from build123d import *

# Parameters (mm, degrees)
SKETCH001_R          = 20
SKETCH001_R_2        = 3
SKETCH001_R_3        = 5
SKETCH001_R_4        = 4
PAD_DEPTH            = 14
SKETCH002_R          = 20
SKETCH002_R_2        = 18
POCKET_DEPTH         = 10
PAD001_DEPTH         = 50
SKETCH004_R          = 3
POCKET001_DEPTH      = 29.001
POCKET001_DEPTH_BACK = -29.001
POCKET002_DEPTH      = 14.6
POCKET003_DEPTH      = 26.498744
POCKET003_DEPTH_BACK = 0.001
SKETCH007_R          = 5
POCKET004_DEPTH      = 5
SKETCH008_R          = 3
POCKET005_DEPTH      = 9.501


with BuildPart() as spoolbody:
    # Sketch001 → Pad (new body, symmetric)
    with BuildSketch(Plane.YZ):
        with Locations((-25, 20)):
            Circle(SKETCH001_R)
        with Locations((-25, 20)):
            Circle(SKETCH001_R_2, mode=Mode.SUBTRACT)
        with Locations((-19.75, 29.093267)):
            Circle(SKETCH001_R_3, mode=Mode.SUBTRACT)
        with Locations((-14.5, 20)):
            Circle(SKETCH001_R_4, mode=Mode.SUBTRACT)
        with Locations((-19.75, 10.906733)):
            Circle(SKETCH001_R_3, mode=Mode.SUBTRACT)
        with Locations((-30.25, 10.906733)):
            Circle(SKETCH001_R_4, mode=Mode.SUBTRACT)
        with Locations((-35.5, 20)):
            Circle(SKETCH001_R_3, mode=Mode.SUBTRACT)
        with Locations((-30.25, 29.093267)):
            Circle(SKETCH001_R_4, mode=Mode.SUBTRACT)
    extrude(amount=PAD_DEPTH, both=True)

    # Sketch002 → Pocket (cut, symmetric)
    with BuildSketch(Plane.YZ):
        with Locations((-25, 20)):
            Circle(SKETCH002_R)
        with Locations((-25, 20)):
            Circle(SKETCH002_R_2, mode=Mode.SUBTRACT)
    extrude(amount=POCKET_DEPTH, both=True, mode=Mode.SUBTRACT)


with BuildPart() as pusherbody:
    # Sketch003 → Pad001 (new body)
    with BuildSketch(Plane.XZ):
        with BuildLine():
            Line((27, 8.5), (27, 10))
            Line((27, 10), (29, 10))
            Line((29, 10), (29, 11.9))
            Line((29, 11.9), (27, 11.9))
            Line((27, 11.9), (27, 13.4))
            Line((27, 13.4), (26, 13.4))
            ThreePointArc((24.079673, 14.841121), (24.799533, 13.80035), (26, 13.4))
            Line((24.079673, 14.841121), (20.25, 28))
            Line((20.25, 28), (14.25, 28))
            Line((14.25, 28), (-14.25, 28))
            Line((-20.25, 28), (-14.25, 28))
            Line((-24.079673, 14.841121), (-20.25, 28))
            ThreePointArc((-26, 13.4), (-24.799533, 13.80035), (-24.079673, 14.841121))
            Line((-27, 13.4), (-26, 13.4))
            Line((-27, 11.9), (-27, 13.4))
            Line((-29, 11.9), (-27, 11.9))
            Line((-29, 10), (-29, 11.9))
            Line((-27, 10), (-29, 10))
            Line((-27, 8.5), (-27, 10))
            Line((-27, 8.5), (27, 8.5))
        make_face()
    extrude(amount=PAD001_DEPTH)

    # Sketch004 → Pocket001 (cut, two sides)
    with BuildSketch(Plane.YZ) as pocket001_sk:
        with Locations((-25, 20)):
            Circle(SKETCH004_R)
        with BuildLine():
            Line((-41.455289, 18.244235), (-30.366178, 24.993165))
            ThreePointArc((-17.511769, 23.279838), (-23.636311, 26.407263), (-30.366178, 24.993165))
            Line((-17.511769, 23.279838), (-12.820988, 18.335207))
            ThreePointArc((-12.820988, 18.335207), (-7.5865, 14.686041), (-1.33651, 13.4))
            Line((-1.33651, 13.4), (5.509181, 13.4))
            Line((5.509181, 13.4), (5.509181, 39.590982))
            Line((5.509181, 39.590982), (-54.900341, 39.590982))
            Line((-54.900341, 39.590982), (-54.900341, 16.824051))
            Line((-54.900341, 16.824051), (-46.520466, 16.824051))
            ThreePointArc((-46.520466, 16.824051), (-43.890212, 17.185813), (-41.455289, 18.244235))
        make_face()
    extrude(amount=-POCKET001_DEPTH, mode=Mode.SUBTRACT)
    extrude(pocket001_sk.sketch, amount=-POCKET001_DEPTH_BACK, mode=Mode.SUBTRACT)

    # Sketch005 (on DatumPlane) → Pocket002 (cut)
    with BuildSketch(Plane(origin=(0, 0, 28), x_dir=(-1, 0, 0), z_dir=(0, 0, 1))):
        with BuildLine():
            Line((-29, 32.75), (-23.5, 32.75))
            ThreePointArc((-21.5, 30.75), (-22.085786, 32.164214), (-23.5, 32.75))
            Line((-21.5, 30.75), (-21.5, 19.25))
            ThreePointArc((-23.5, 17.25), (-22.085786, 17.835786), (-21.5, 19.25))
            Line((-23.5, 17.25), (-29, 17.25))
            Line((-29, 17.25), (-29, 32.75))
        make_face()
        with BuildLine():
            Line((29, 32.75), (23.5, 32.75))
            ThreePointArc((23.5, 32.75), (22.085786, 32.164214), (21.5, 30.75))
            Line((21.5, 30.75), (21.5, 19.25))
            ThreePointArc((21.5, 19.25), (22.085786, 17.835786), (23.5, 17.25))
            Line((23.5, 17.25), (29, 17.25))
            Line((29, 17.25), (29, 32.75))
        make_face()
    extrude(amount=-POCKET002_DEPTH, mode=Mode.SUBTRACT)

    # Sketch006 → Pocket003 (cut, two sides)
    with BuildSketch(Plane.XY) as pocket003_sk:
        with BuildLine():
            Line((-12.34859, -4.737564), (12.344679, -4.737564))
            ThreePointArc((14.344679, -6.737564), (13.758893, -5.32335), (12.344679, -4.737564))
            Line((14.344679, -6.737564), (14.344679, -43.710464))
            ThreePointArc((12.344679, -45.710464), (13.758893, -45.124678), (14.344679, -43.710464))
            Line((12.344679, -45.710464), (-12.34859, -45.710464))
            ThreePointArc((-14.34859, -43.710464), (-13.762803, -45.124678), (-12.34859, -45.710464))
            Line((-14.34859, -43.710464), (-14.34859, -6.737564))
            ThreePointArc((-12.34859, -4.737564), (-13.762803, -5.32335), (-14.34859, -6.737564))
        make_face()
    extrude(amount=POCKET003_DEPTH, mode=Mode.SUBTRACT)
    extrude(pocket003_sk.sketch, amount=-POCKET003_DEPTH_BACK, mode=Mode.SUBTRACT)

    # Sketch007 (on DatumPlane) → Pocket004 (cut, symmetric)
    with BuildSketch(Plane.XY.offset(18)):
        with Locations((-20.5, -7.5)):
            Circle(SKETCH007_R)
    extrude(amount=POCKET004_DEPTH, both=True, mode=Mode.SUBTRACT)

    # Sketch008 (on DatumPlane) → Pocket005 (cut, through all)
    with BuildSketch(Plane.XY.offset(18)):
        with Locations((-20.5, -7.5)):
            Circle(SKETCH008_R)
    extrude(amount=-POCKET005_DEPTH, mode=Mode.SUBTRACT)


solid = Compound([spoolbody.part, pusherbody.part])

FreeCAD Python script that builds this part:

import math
import FreeCAD as App
import Part
import Sketcher

doc = App.newDocument("Part")
body = doc.addObject("PartDesign::Body", "Body")

# Sketch on YZ plane
sketch1 = body.newObject("Sketcher::SketchObject", "Sketch")
sketch1.AttachmentSupport = (doc.getObject("YZ_Plane"), [""])
sketch1.MapMode = "FlatFace"
sketch1.addGeometry([
    Part.Circle(App.Vector(-25, 20, 0), App.Vector(0, 0, 1), 20),  # 0
    Part.Circle(App.Vector(-30.2, 10.9, 0), App.Vector(0, 0, 1), 4),  # 1
    Part.Circle(App.Vector(-19.8, 10.9, 0), App.Vector(0, 0, 1), 5),  # 2
    Part.Circle(App.Vector(-35.5, 20, 0), App.Vector(0, 0, 1), 5),  # 3
    Part.Circle(App.Vector(-30.2, 29.1, 0), App.Vector(0, 0, 1), 4),  # 4
    Part.Circle(App.Vector(-25, 20, 0), App.Vector(0, 0, 1), 3),  # 5
    Part.Circle(App.Vector(-14.5, 20, 0), App.Vector(0, 0, 1), 4),  # 6
    Part.Circle(App.Vector(-19.8, 29.1, 0), App.Vector(0, 0, 1), 5),  # 7
], False)
sketch1.addConstraint([
    Sketcher.Constraint("Coincident", 5, 3, 0, 3),
    Sketcher.Constraint("Equal", 2, 3),
    Sketcher.Constraint("Equal", 1, 4),
    Sketcher.Constraint("Equal", 4, 6),
    Sketcher.Constraint("Equal", 3, 7),
    Sketcher.Constraint("Horizontal", 1, 3, 2, 3),
    Sketcher.Constraint("Horizontal", 0, 3, 3, 3),
    Sketcher.Constraint("Horizontal", 5, 3, 6, 3),
    Sketcher.Constraint("Horizontal", 4, 3, 7, 3),
    Sketcher.Constraint("Vertical", 1, 3, 4, 3),
    Sketcher.Constraint("Vertical", 2, 3, 7, 3),
    Sketcher.Constraint("Diameter", 0, 40.0),
    Sketcher.Constraint("Diameter", 1, 8.0),
    Sketcher.Constraint("Diameter", 2, 10.0),
    Sketcher.Constraint("Diameter", 5, 6.0),
    Sketcher.Constraint("DistanceX", 0, 3, -1, 1, 25.0),
    Sketcher.Constraint("DistanceY", -1, 1, 0, 3, 20.0),
    Sketcher.Constraint("DistanceX", 3, 3, -1, 1, 35.5),
    Sketcher.Constraint("DistanceX", 6, 3, -1, 1, 14.5),
    Sketcher.Constraint("DistanceX", 1, 3, 2, 3, 10.5),
    Sketcher.Constraint("DistanceX", 1, 3, -1, 1, 30.25),
    Sketcher.Constraint("DistanceY", -1, 1, 1, 3, 10.906733),
    Sketcher.Constraint("DistanceY", -1, 1, 4, 3, 29.093267),
])
pad1 = body.newObject("PartDesign::Pad", "Pad")
pad1.Profile = sketch1
pad1.Length = 28
pad1.Midplane = True

# Sketch on YZ plane
sketch2 = body.newObject("Sketcher::SketchObject", "Sketch001")
sketch2.AttachmentSupport = (doc.getObject("YZ_Plane"), [""])
sketch2.MapMode = "FlatFace"
sketch2.addGeometry([
    Part.Circle(App.Vector(-25, 20, 0), App.Vector(0, 0, 1), 20),
    Part.Circle(App.Vector(-25, 20, 0), App.Vector(0, 0, 1), 18),
], False)
sketch2.addConstraint([
    Sketcher.Constraint("Coincident", 1, 3, 0, 3),
    Sketcher.Constraint("Diameter", 0, 40.0),
    Sketcher.Constraint("Diameter", 1, 36.0),
    Sketcher.Constraint("DistanceX", 0, 3, -1, 1, 25.0),
    Sketcher.Constraint("DistanceY", -1, 1, 0, 3, 20.0),
])
pocket1 = body.newObject("PartDesign::Pocket", "Pocket")
pocket1.Profile = sketch2
pocket1.Length = 20
pocket1.Midplane = True
body2 = doc.addObject("PartDesign::Body", "Body001")

# Sketch on XZ plane
sketch3 = body2.newObject("Sketcher::SketchObject", "Sketch002")
sketch3.AttachmentSupport = (doc.getObject("XZ_Plane001"), [""])
sketch3.MapMode = "FlatFace"
sketch3.addGeometry([
    Part.LineSegment(App.Vector(27, 8.5, 0), App.Vector(27, 10, 0)),  # 0
    Part.LineSegment(App.Vector(27, 10, 0), App.Vector(29, 10, 0)),  # 1
    Part.LineSegment(App.Vector(29, 10, 0), App.Vector(29, 11.9, 0)),  # 2
    Part.LineSegment(App.Vector(29, 11.9, 0), App.Vector(27, 11.9, 0)),  # 3
    Part.LineSegment(App.Vector(27, 11.9, 0), App.Vector(27, 13.4, 0)),  # 4
    Part.LineSegment(App.Vector(27, 13.4, 0), App.Vector(26, 13.4, 0)),  # 5
    Part.ArcOfCircle(Part.Circle(App.Vector(26, 15.4, 0), App.Vector(0, 0, 1), 2), math.radians(-164), math.radians(-90)),  # 6
    Part.LineSegment(App.Vector(24.1, 14.8, 0), App.Vector(20.2, 28, 0)),  # 7
    Part.LineSegment(App.Vector(20.2, 28, 0), App.Vector(-20.2, 28, 0)),  # 8
    Part.LineSegment(App.Vector(-20.2, 28, 0), App.Vector(-24.1, 14.8, 0)),  # 9
    Part.ArcOfCircle(Part.Circle(App.Vector(-26, 15.4, 0), App.Vector(0, 0, 1), 2), math.radians(-90), math.radians(-16)),  # 10
    Part.LineSegment(App.Vector(-26, 13.4, 0), App.Vector(-27, 13.4, 0)),  # 11
    Part.LineSegment(App.Vector(-27, 13.4, 0), App.Vector(-27, 11.9, 0)),  # 12
    Part.LineSegment(App.Vector(-27, 11.9, 0), App.Vector(-29, 11.9, 0)),  # 13
    Part.LineSegment(App.Vector(-29, 11.9, 0), App.Vector(-29, 10, 0)),  # 14
    Part.LineSegment(App.Vector(-29, 10, 0), App.Vector(-27, 10, 0)),  # 15
    Part.LineSegment(App.Vector(-27, 10, 0), App.Vector(-27, 8.5, 0)),  # 16
    Part.LineSegment(App.Vector(-27, 8.5, 0), App.Vector(27, 8.5, 0)),  # 17
], False)
sketch3.addConstraint([
    Sketcher.Constraint("Coincident", 0, 2, 1, 1),
    Sketcher.Constraint("Coincident", 1, 2, 2, 1),
    Sketcher.Constraint("Coincident", 2, 2, 3, 1),
    Sketcher.Constraint("Coincident", 3, 2, 4, 1),
    Sketcher.Constraint("Coincident", 4, 2, 5, 1),
    Sketcher.Constraint("Tangent", 5, 2, 6, 2),
    Sketcher.Constraint("Tangent", 6, 1, 7, 1),
    Sketcher.Constraint("Coincident", 7, 2, 8, 1),
    Sketcher.Constraint("Coincident", 8, 2, 9, 1),
    Sketcher.Constraint("Tangent", 9, 2, 10, 2),
    Sketcher.Constraint("Tangent", 10, 1, 11, 1),
    Sketcher.Constraint("Coincident", 11, 2, 12, 1),
    Sketcher.Constraint("Coincident", 12, 2, 13, 1),
    Sketcher.Constraint("Coincident", 13, 2, 14, 1),
    Sketcher.Constraint("Coincident", 14, 2, 15, 1),
    Sketcher.Constraint("Coincident", 15, 2, 16, 1),
    Sketcher.Constraint("Coincident", 16, 2, 17, 1),
    Sketcher.Constraint("Coincident", 17, 2, 0, 1),
    Sketcher.Constraint("Vertical", 0),
    Sketcher.Constraint("Horizontal", 1),
    Sketcher.Constraint("Vertical", 2),
    Sketcher.Constraint("Horizontal", 3),
    Sketcher.Constraint("Vertical", 4),
    Sketcher.Constraint("Horizontal", 5),
    Sketcher.Constraint("Horizontal", 8),
    Sketcher.Constraint("Horizontal", 11),
    Sketcher.Constraint("Vertical", 12),
    Sketcher.Constraint("Horizontal", 13),
    Sketcher.Constraint("Vertical", 14),
    Sketcher.Constraint("Horizontal", 15),
    Sketcher.Constraint("Vertical", 16),
    Sketcher.Constraint("Horizontal", 17),
    Sketcher.Constraint("Equal", 6, 10),
    Sketcher.Constraint("Symmetric", 6, 3, 10, 3, -2),
    Sketcher.Constraint("Symmetric", 3, 2, 12, 2, -2),
    Sketcher.Constraint("Symmetric", 1, 2, 14, 2, -2),
    Sketcher.Constraint("Horizontal", 6, 1, 9, 2),
    Sketcher.Constraint("Vertical", 0, 2, 3, 2),
    Sketcher.Constraint("Vertical", 12, 2, 15, 2),
    Sketcher.Constraint("Equal", 0, 4),
    Sketcher.Constraint("Radius", 6, 2.0),
    Sketcher.Constraint("DistanceX", 1, 1, 1, 2, 2.0),
    Sketcher.Constraint("DistanceX", 5, 2, 5, 1, 1.0),
    Sketcher.Constraint("DistanceX", 17, 1, 17, 2, 54.0),
    Sketcher.Constraint("DistanceX", 8, 2, 8, 1, 40.5),
    Sketcher.Constraint("DistanceY", 0, 1, 0, 2, 1.5),
    Sketcher.Constraint("DistanceY", 2, 1, 2, 2, 1.9),
    Sketcher.Constraint("DistanceY", -1, 1, 0, 2, 10.0),
    Sketcher.Constraint("DistanceY", -1, 1, 7, 2, 28.0),
])
pad2 = body2.newObject("PartDesign::Pad", "Pad001")
pad2.Profile = sketch3
pad2.Length = 50

# Sketch on YZ plane
sketch4 = body2.newObject("Sketcher::SketchObject", "Sketch003")
sketch4.AttachmentSupport = (doc.getObject("YZ_Plane001"), [""])
sketch4.MapMode = "FlatFace"
sketch4.addGeometry([
    Part.Circle(App.Vector(-25, 20, 0), App.Vector(0, 0, 1), 3),  # 0
    Part.LineSegment(App.Vector(-41.5, 18.2, 0), App.Vector(-30.4, 25, 0)),  # 1
    Part.ArcOfCircle(Part.Circle(App.Vector(-25, 16.2, 0), App.Vector(0, 0, 1), 10.3), math.radians(43), math.radians(121)),  # 2
    Part.LineSegment(App.Vector(-17.5, 23.3, 0), App.Vector(-12.8, 18.3, 0)),  # 3
    Part.ArcOfCircle(Part.Circle(App.Vector(-1.3, 29.2, 0), App.Vector(0, 0, 1), 15.8), math.radians(-137), math.radians(-90)),  # 4
    Part.LineSegment(App.Vector(-1.3, 13.4, 0), App.Vector(5.5, 13.4, 0)),  # 5
    Part.LineSegment(App.Vector(5.5, 13.4, 0), App.Vector(5.5, 39.6, 0)),  # 6
    Part.LineSegment(App.Vector(5.5, 39.6, 0), App.Vector(-54.9, 39.6, 0)),  # 7
    Part.LineSegment(App.Vector(-54.9, 39.6, 0), App.Vector(-54.9, 16.8, 0)),  # 8
    Part.LineSegment(App.Vector(-54.9, 16.8, 0), App.Vector(-46.5, 16.8, 0)),  # 9
    Part.ArcOfCircle(Part.Circle(App.Vector(-46.5, 26.6, 0), App.Vector(0, 0, 1), 9.7), math.radians(-90), math.radians(-59)),  # 10
], False)
sketch4.addConstraint([
    Sketcher.Constraint("Tangent", 1, 2, 2, 2),
    Sketcher.Constraint("Tangent", 2, 1, 3, 1),
    Sketcher.Constraint("Tangent", 3, 2, 4, 1),
    Sketcher.Constraint("Tangent", 4, 2, 5, 1),
    Sketcher.Constraint("Coincident", 5, 2, 6, 1),
    Sketcher.Constraint("Coincident", 6, 2, 7, 1),
    Sketcher.Constraint("Coincident", 7, 2, 8, 1),
    Sketcher.Constraint("Coincident", 8, 2, 9, 1),
    Sketcher.Constraint("Tangent", 9, 2, 10, 1),
    Sketcher.Constraint("Tangent", 10, 2, 1, 1),
    Sketcher.Constraint("Horizontal", 5),
    Sketcher.Constraint("Vertical", 6),
    Sketcher.Constraint("Horizontal", 7),
    Sketcher.Constraint("Vertical", 8),
    Sketcher.Constraint("Horizontal", 9),
    Sketcher.Constraint("Vertical", 0, 3, 2, 3),
    Sketcher.Constraint("Diameter", 0, 6.0),
    Sketcher.Constraint("DistanceX", 0, 3, -1, 1, 25.0),
    Sketcher.Constraint("DistanceY", -1, 1, 0, 3, 20.0),
    Sketcher.Constraint("DistanceY", -1, 1, 4, 2, 13.4),
    Sketcher.Constraint("Radius", 2, 10.3217),
    Sketcher.Constraint("Radius", 10, 9.74272),
    Sketcher.Constraint("Radius", 4, 15.830087),
    Sketcher.Constraint("DistanceX", 5, 1, 5, 2, 6.845691),
    Sketcher.Constraint("DistanceX", 7, 2, 7, 1, 60.409522),
    Sketcher.Constraint("DistanceY", 6, 1, 6, 2, 26.190982),
    Sketcher.Constraint("DistanceY", 8, 2, 8, 1, 22.766931),
    Sketcher.Constraint("Distance", 1, 12.981388),
    Sketcher.Constraint("Distance", 3, 6.815629),
    Sketcher.Constraint("DistanceX", 9, 1, 9, 2, 8.379875),
])
pocket2 = body2.newObject("PartDesign::Pocket", "Pocket001")
pocket2.Profile = sketch4
pocket2.Type = "ThroughAll"
pocket2.Midplane = True

# Sketch on XY plane
sketch5 = body2.newObject("Sketcher::SketchObject", "Sketch004")
sketch5.AttachmentSupport = (doc.getObject("XY_Plane001"), [""])
sketch5.MapMode = "FlatFace"
sketch5.AttachmentOffset = App.Placement(App.Vector(0, 0, 28), App.Rotation())
sketch5.addGeometry([
    Part.LineSegment(App.Vector(23.5, -32.8, 0), App.Vector(29, -32.8, 0)),  # 0
    Part.LineSegment(App.Vector(29, -32.8, 0), App.Vector(29, -17.2, 0)),  # 1
    Part.LineSegment(App.Vector(29, -17.2, 0), App.Vector(23.5, -17.2, 0)),  # 2
    Part.ArcOfCircle(Part.Circle(App.Vector(23.5, -19.2, 0), App.Vector(0, 0, 1), 2), math.radians(90), math.radians(180)),  # 3
    Part.LineSegment(App.Vector(21.5, -19.2, 0), App.Vector(21.5, -30.8, 0)),  # 4
    Part.ArcOfCircle(Part.Circle(App.Vector(23.5, -30.8, 0), App.Vector(0, 0, 1), 2), math.radians(180), math.radians(270)),  # 5
    Part.LineSegment(App.Vector(-29, -32.8, 0), App.Vector(-23.5, -32.8, 0)),  # 6
    Part.ArcOfCircle(Part.Circle(App.Vector(-23.5, -30.8, 0), App.Vector(0, 0, 1), 2), math.radians(-90), math.radians(0)),  # 7
    Part.LineSegment(App.Vector(-21.5, -30.8, 0), App.Vector(-21.5, -19.2, 0)),  # 8
    Part.ArcOfCircle(Part.Circle(App.Vector(-23.5, -19.2, 0), App.Vector(0, 0, 1), 2), math.radians(0), math.radians(90)),  # 9
    Part.LineSegment(App.Vector(-23.5, -17.2, 0), App.Vector(-29, -17.2, 0)),  # 10
    Part.LineSegment(App.Vector(-29, -17.2, 0), App.Vector(-29, -32.8, 0)),  # 11
], False)
sketch5.addConstraint([
    Sketcher.Constraint("Coincident", 0, 2, 1, 1),
    Sketcher.Constraint("Coincident", 1, 2, 2, 1),
    Sketcher.Constraint("Tangent", 2, 2, 3, 1),
    Sketcher.Constraint("Tangent", 3, 2, 4, 1),
    Sketcher.Constraint("Tangent", 4, 2, 5, 1),
    Sketcher.Constraint("Tangent", 5, 2, 0, 1),
    Sketcher.Constraint("Tangent", 6, 2, 7, 1),
    Sketcher.Constraint("Tangent", 7, 2, 8, 1),
    Sketcher.Constraint("Tangent", 8, 2, 9, 1),
    Sketcher.Constraint("Tangent", 9, 2, 10, 1),
    Sketcher.Constraint("Coincident", 10, 2, 11, 1),
    Sketcher.Constraint("Coincident", 11, 2, 6, 1),
    Sketcher.Constraint("Horizontal", 0),
    Sketcher.Constraint("Vertical", 1),
    Sketcher.Constraint("Horizontal", 2),
    Sketcher.Constraint("Vertical", 4),
    Sketcher.Constraint("Horizontal", 6),
    Sketcher.Constraint("Vertical", 8),
    Sketcher.Constraint("Horizontal", 10),
    Sketcher.Constraint("Vertical", 11),
    Sketcher.Constraint("Equal", 3, 5),
    Sketcher.Constraint("Equal", 5, 7),
    Sketcher.Constraint("Equal", 7, 9),
    Sketcher.Constraint("Symmetric", 5, 3, 7, 3, -2),
    Sketcher.Constraint("Symmetric", 1, 2, 10, 2, -2),
    Sketcher.Constraint("Radius", 3, 1.999999),
    Sketcher.Constraint("DistanceX", 0, 1, 0, 2, 5.5),
    Sketcher.Constraint("DistanceY", 1, 1, 1, 2, 15.5),
    Sketcher.Constraint("DistanceX", -1, 1, 0, 2, 29.0),
    Sketcher.Constraint("DistanceY", 3, 3, -1, 1, 19.249999),
])
pocket3 = body2.newObject("PartDesign::Pocket", "Pocket002")
pocket3.Profile = sketch5
pocket3.Length = 14.6

# Sketch on XY plane
sketch6 = body2.newObject("Sketcher::SketchObject", "Sketch005")
sketch6.AttachmentSupport = (doc.getObject("XY_Plane001"), [""])
sketch6.MapMode = "FlatFace"
sketch6.addGeometry([
    Part.LineSegment(App.Vector(12.3, -4.7, 0), App.Vector(-12.3, -4.7, 0)),  # 0
    Part.ArcOfCircle(Part.Circle(App.Vector(-12.3, -6.7, 0), App.Vector(0, 0, 1), 2), math.radians(90), math.radians(180)),  # 1
    Part.LineSegment(App.Vector(-14.3, -6.7, 0), App.Vector(-14.3, -43.7, 0)),  # 2
    Part.ArcOfCircle(Part.Circle(App.Vector(-12.3, -43.7, 0), App.Vector(0, 0, 1), 2), math.radians(-180), math.radians(-90)),  # 3
    Part.LineSegment(App.Vector(-12.3, -45.7, 0), App.Vector(12.3, -45.7, 0)),  # 4
    Part.ArcOfCircle(Part.Circle(App.Vector(12.3, -43.7, 0), App.Vector(0, 0, 1), 2), math.radians(-90), math.radians(0)),  # 5
    Part.LineSegment(App.Vector(14.3, -43.7, 0), App.Vector(14.3, -6.7, 0)),  # 6
    Part.ArcOfCircle(Part.Circle(App.Vector(12.3, -6.7, 0), App.Vector(0, 0, 1), 2), math.radians(0), math.radians(90)),  # 7
], False)
sketch6.addConstraint([
    Sketcher.Constraint("Tangent", 0, 2, 1, 1),
    Sketcher.Constraint("Tangent", 1, 2, 2, 1),
    Sketcher.Constraint("Tangent", 2, 2, 3, 1),
    Sketcher.Constraint("Tangent", 3, 2, 4, 1),
    Sketcher.Constraint("Tangent", 4, 2, 5, 1),
    Sketcher.Constraint("Tangent", 5, 2, 6, 1),
    Sketcher.Constraint("Tangent", 6, 2, 7, 1),
    Sketcher.Constraint("Tangent", 7, 2, 0, 1),
    Sketcher.Constraint("Horizontal", 0),
    Sketcher.Constraint("Vertical", 2),
    Sketcher.Constraint("Horizontal", 4),
    Sketcher.Constraint("Vertical", 6),
    Sketcher.Constraint("Equal", 1, 3),
    Sketcher.Constraint("Equal", 3, 5),
    Sketcher.Constraint("Equal", 5, 7),
    Sketcher.Constraint("Radius", 1, 2.0),
    Sketcher.Constraint("DistanceY", 2, 2, 2, 1, 36.9729),
    Sketcher.Constraint("DistanceX", 0, 2, 0, 1, 24.693269),
    Sketcher.Constraint("DistanceX", 1, 3, -1, 1, 12.34859),
    Sketcher.Constraint("DistanceY", 1, 3, -1, 1, 6.737564),
])
pocket4 = body2.newObject("PartDesign::Pocket", "Pocket003")
pocket4.Profile = sketch6
pocket4.Type = "ThroughAll"
pocket4.Midplane = True

# Sketch on XY plane
sketch7 = body2.newObject("Sketcher::SketchObject", "Sketch006")
sketch7.AttachmentSupport = (doc.getObject("XY_Plane001"), [""])
sketch7.MapMode = "FlatFace"
sketch7.AttachmentOffset = App.Placement(App.Vector(0, 0, 18), App.Rotation())
sketch7.addGeometry(Part.Circle(App.Vector(-20, -8, 0), App.Vector(0, 0, 1), 5), False)
sketch7.addConstraint([
    Sketcher.Constraint("Diameter", 0, 10.0),
    Sketcher.Constraint("DistanceX", 0, 3, -1, 1, 20.5),
    Sketcher.Constraint("DistanceY", 0, 3, -1, 1, 7.5),
])
pocket5 = body2.newObject("PartDesign::Pocket", "Pocket004")
pocket5.Profile = sketch7
pocket5.Length = 10
pocket5.Midplane = True

# Sketch on XY plane
sketch8 = body2.newObject("Sketcher::SketchObject", "Sketch007")
sketch8.AttachmentSupport = (doc.getObject("XY_Plane001"), [""])
sketch8.MapMode = "FlatFace"
sketch8.AttachmentOffset = App.Placement(App.Vector(0, 0, 18), App.Rotation())
sketch8.addGeometry(Part.Circle(App.Vector(-20.5, -7.5, 0), App.Vector(0, 0, 1), 3), False)
sketch8.addConstraint([
    Sketcher.Constraint("Diameter", 0, 6.0),
    Sketcher.Constraint("DistanceX", 0, 3, -1, 1, 20.5),
    Sketcher.Constraint("DistanceY", 0, 3, -1, 1, 7.5),
])
pocket6 = body2.newObject("PartDesign::Pocket", "Pocket005")
pocket6.Profile = sketch8
pocket6.Type = "ThroughAll"

doc.recompute()
